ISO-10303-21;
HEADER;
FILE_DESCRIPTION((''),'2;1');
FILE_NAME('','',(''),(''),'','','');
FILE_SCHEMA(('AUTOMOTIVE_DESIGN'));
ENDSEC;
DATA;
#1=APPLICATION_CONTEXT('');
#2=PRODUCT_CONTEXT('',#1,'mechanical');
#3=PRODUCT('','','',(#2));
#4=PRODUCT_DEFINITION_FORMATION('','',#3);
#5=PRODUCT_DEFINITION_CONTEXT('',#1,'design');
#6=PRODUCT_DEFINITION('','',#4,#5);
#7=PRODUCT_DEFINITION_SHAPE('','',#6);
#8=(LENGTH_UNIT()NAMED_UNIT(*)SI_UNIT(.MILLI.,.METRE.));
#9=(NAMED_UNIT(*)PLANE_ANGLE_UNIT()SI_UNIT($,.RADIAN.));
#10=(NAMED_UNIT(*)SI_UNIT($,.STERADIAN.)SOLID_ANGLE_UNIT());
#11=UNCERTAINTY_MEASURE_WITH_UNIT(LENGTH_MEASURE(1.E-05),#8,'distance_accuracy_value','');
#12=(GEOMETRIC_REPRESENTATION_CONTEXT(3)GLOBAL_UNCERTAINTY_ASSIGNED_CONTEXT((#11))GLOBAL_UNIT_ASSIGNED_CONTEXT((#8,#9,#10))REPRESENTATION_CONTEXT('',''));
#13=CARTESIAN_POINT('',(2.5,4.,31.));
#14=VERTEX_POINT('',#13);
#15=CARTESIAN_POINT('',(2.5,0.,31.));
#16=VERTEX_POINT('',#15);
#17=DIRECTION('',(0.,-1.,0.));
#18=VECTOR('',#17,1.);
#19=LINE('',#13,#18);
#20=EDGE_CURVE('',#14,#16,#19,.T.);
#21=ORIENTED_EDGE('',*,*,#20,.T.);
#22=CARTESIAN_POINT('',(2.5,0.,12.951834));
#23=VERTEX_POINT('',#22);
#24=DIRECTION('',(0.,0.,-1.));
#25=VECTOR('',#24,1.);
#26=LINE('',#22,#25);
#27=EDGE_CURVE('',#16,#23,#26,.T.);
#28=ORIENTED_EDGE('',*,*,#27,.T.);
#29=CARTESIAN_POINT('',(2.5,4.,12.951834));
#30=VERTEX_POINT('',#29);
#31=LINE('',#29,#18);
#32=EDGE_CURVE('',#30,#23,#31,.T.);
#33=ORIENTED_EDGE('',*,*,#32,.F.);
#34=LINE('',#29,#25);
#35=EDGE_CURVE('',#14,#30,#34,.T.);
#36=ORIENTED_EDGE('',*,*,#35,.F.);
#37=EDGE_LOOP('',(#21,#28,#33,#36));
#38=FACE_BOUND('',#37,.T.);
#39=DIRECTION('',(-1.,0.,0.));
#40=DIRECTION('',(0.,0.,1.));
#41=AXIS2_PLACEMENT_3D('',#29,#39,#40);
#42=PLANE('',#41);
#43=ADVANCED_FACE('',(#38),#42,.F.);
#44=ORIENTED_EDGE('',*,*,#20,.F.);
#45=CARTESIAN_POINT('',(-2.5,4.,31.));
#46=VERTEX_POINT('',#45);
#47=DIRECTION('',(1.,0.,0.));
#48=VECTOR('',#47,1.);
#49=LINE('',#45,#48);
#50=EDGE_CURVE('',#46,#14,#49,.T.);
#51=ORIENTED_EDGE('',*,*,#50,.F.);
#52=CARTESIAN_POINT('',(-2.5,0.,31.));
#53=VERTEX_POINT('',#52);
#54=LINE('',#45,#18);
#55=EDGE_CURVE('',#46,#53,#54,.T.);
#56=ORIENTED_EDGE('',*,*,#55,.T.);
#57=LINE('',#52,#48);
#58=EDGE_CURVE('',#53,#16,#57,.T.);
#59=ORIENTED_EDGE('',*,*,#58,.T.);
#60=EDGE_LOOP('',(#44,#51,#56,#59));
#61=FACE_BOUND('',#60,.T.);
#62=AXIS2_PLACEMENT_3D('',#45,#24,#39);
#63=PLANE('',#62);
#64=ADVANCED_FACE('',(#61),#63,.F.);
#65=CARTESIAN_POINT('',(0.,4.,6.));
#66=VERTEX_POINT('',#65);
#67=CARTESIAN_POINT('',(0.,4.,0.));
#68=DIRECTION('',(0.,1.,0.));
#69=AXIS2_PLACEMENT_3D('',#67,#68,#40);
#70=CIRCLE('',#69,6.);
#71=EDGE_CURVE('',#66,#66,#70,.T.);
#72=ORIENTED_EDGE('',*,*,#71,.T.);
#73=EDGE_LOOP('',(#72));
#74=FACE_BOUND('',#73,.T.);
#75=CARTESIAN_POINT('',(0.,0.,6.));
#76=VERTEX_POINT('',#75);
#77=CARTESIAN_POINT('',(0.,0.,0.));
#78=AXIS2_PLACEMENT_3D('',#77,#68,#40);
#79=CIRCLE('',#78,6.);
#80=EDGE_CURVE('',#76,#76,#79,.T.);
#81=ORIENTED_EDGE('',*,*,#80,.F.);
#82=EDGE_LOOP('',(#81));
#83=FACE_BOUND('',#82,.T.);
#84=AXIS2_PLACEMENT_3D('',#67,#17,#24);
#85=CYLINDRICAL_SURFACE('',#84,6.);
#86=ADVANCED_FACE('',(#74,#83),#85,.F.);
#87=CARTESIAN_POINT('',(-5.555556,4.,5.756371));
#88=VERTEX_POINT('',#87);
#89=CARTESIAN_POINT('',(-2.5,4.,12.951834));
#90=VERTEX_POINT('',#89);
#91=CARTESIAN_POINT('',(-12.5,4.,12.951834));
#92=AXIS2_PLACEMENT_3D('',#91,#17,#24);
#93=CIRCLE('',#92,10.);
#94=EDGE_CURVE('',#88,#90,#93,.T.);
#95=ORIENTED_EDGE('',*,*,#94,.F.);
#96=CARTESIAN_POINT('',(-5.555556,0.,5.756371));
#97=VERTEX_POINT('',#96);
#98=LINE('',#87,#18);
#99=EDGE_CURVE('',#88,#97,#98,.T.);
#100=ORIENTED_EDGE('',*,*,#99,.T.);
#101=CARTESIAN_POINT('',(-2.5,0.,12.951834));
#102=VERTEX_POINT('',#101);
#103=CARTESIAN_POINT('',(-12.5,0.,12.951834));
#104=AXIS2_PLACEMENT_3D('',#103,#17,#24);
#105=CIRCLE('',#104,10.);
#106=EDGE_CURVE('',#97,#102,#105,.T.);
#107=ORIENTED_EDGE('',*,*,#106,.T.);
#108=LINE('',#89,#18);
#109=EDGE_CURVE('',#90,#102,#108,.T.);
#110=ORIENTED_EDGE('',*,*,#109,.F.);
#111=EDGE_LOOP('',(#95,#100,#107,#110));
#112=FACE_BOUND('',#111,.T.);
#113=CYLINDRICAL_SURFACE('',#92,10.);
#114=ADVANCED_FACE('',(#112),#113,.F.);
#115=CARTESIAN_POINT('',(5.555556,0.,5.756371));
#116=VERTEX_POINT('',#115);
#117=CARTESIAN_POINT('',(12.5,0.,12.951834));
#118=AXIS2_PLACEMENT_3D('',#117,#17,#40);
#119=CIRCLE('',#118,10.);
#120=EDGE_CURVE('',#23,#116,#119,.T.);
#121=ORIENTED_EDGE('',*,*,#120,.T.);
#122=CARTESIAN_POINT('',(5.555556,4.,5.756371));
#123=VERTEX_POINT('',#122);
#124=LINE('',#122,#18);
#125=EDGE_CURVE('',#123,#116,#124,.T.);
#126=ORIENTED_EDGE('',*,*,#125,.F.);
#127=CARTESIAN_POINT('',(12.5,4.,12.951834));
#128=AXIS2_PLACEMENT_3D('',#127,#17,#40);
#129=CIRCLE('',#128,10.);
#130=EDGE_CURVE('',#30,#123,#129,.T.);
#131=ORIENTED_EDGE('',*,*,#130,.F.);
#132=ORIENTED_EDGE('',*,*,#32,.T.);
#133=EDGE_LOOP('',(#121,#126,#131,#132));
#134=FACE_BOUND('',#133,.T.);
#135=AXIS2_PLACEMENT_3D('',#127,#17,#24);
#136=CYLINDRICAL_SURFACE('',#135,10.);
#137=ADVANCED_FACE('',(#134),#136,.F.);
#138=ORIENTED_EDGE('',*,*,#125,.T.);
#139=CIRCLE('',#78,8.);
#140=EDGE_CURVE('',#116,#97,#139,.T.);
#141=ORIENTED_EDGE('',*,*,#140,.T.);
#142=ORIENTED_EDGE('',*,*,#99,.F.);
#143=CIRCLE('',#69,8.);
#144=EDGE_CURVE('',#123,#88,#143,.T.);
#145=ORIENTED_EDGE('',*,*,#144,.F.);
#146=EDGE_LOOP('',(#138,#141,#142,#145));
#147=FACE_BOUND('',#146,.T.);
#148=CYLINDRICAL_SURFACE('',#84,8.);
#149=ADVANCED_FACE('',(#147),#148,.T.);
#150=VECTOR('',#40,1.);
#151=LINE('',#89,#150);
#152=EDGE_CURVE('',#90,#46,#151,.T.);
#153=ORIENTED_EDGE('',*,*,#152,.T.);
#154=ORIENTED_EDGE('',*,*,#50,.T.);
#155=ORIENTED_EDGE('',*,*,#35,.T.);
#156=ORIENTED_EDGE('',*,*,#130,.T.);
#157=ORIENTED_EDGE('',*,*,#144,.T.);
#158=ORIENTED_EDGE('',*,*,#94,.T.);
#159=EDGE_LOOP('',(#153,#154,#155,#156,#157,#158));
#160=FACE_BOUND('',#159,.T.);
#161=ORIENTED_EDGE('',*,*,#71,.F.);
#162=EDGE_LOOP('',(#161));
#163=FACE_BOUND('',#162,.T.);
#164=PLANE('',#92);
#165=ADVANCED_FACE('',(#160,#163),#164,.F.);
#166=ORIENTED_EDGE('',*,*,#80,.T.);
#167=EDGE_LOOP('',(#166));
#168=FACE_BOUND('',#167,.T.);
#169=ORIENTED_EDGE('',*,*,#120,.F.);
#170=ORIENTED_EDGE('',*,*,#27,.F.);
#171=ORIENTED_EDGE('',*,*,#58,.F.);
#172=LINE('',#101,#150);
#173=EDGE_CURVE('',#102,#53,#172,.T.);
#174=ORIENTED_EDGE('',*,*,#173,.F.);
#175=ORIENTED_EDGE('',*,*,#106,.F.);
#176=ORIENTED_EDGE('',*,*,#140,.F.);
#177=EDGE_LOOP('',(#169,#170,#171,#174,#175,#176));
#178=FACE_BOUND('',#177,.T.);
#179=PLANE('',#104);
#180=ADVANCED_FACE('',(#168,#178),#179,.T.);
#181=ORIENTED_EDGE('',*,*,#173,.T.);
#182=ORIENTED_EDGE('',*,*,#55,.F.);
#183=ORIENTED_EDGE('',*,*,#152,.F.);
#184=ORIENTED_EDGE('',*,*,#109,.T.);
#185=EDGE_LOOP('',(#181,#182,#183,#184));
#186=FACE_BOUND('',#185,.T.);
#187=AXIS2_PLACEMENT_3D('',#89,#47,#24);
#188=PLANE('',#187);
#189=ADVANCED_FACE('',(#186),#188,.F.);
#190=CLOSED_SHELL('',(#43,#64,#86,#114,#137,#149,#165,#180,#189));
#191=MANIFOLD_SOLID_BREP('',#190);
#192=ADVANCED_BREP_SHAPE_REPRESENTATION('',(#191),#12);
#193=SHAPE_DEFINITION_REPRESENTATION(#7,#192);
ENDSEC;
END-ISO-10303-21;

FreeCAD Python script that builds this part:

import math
import FreeCAD as App
import Part
import Sketcher

V = App.Vector
Q = App.Units.Quantity

doc = App.newDocument("Part")
body = doc.addObject("PartDesign::Body", "Body")

sketch1 = body.newObject("Sketcher::SketchObject", "Sketch")
sketch1.AttachmentSupport = (doc.getObject("XZ_Plane"), [""])
sketch1.MapMode = "FlatFace"
sketch1.addGeometry([
    Part.LineSegment(V(-2.5, 12.951834, 0), V(-2.5, 31, 0)),
    Part.LineSegment(V(-2.5, 31, 0), V(2.5, 31, 0)),
    Part.LineSegment(V(2.5, 31, 0), V(2.5, 12.951834, 0)),
    Part.ArcOfCircle(Part.Circle(V(12.5, 12.951834, 0), V(0, 0, 1), 10), math.radians(180), math.radians(226.017037)),
    Part.ArcOfCircle(Part.Circle(V(0, 0, 0), V(0, 0, 1), 8), math.radians(133.982963), math.radians(406.017037)),
    Part.ArcOfCircle(Part.Circle(V(-12.5, 12.951834, 0), V(0, 0, 1), 10), math.radians(-46.017037), math.radians(0)),
    Part.Circle(V(0, 0, 0), V(0, 0, 1), 6),
], False)
sketch1.addConstraint([
    Sketcher.Constraint("Coincident", 0, 2, 1, 1),
    Sketcher.Constraint("Coincident", 1, 2, 2, 1),
    Sketcher.Constraint("Tangent", 2, 2, 3, 1),
    Sketcher.Constraint("Tangent", 3, 2, 4, 2),
    Sketcher.Constraint("Tangent", 4, 1, 5, 1),
    Sketcher.Constraint("Tangent", 5, 2, 0, 1),
    Sketcher.Constraint("Vertical", 0),
    Sketcher.Constraint("Horizontal", 1),
    Sketcher.Constraint("Vertical", 2),
    Sketcher.Constraint("Coincident", 4, 3, -1, 1),
    Sketcher.Constraint("Coincident", 6, 3, -1, 1),
    Sketcher.Constraint("Equal", 3, 5),
    Sketcher.Constraint("Horizontal", 3, 3, 5, 3),
    Sketcher.Constraint("Diameter", 6, Q("12 mm")),
    Sketcher.Constraint("Radius", 3, Q("10 mm")),
    Sketcher.Constraint("Radius", 4, Q("8 mm")),
    Sketcher.Constraint("DistanceX", 1, 1, 1, 2, Q("5 mm")),
    Sketcher.Constraint("DistanceY", -1, 1, 0, 2, Q("31 mm")),
])
pad1 = body.newObject("PartDesign::Pad", "Pad")
pad1.Profile = sketch1
pad1.Length = 4
pad1.Reversed = True

doc.recompute()
